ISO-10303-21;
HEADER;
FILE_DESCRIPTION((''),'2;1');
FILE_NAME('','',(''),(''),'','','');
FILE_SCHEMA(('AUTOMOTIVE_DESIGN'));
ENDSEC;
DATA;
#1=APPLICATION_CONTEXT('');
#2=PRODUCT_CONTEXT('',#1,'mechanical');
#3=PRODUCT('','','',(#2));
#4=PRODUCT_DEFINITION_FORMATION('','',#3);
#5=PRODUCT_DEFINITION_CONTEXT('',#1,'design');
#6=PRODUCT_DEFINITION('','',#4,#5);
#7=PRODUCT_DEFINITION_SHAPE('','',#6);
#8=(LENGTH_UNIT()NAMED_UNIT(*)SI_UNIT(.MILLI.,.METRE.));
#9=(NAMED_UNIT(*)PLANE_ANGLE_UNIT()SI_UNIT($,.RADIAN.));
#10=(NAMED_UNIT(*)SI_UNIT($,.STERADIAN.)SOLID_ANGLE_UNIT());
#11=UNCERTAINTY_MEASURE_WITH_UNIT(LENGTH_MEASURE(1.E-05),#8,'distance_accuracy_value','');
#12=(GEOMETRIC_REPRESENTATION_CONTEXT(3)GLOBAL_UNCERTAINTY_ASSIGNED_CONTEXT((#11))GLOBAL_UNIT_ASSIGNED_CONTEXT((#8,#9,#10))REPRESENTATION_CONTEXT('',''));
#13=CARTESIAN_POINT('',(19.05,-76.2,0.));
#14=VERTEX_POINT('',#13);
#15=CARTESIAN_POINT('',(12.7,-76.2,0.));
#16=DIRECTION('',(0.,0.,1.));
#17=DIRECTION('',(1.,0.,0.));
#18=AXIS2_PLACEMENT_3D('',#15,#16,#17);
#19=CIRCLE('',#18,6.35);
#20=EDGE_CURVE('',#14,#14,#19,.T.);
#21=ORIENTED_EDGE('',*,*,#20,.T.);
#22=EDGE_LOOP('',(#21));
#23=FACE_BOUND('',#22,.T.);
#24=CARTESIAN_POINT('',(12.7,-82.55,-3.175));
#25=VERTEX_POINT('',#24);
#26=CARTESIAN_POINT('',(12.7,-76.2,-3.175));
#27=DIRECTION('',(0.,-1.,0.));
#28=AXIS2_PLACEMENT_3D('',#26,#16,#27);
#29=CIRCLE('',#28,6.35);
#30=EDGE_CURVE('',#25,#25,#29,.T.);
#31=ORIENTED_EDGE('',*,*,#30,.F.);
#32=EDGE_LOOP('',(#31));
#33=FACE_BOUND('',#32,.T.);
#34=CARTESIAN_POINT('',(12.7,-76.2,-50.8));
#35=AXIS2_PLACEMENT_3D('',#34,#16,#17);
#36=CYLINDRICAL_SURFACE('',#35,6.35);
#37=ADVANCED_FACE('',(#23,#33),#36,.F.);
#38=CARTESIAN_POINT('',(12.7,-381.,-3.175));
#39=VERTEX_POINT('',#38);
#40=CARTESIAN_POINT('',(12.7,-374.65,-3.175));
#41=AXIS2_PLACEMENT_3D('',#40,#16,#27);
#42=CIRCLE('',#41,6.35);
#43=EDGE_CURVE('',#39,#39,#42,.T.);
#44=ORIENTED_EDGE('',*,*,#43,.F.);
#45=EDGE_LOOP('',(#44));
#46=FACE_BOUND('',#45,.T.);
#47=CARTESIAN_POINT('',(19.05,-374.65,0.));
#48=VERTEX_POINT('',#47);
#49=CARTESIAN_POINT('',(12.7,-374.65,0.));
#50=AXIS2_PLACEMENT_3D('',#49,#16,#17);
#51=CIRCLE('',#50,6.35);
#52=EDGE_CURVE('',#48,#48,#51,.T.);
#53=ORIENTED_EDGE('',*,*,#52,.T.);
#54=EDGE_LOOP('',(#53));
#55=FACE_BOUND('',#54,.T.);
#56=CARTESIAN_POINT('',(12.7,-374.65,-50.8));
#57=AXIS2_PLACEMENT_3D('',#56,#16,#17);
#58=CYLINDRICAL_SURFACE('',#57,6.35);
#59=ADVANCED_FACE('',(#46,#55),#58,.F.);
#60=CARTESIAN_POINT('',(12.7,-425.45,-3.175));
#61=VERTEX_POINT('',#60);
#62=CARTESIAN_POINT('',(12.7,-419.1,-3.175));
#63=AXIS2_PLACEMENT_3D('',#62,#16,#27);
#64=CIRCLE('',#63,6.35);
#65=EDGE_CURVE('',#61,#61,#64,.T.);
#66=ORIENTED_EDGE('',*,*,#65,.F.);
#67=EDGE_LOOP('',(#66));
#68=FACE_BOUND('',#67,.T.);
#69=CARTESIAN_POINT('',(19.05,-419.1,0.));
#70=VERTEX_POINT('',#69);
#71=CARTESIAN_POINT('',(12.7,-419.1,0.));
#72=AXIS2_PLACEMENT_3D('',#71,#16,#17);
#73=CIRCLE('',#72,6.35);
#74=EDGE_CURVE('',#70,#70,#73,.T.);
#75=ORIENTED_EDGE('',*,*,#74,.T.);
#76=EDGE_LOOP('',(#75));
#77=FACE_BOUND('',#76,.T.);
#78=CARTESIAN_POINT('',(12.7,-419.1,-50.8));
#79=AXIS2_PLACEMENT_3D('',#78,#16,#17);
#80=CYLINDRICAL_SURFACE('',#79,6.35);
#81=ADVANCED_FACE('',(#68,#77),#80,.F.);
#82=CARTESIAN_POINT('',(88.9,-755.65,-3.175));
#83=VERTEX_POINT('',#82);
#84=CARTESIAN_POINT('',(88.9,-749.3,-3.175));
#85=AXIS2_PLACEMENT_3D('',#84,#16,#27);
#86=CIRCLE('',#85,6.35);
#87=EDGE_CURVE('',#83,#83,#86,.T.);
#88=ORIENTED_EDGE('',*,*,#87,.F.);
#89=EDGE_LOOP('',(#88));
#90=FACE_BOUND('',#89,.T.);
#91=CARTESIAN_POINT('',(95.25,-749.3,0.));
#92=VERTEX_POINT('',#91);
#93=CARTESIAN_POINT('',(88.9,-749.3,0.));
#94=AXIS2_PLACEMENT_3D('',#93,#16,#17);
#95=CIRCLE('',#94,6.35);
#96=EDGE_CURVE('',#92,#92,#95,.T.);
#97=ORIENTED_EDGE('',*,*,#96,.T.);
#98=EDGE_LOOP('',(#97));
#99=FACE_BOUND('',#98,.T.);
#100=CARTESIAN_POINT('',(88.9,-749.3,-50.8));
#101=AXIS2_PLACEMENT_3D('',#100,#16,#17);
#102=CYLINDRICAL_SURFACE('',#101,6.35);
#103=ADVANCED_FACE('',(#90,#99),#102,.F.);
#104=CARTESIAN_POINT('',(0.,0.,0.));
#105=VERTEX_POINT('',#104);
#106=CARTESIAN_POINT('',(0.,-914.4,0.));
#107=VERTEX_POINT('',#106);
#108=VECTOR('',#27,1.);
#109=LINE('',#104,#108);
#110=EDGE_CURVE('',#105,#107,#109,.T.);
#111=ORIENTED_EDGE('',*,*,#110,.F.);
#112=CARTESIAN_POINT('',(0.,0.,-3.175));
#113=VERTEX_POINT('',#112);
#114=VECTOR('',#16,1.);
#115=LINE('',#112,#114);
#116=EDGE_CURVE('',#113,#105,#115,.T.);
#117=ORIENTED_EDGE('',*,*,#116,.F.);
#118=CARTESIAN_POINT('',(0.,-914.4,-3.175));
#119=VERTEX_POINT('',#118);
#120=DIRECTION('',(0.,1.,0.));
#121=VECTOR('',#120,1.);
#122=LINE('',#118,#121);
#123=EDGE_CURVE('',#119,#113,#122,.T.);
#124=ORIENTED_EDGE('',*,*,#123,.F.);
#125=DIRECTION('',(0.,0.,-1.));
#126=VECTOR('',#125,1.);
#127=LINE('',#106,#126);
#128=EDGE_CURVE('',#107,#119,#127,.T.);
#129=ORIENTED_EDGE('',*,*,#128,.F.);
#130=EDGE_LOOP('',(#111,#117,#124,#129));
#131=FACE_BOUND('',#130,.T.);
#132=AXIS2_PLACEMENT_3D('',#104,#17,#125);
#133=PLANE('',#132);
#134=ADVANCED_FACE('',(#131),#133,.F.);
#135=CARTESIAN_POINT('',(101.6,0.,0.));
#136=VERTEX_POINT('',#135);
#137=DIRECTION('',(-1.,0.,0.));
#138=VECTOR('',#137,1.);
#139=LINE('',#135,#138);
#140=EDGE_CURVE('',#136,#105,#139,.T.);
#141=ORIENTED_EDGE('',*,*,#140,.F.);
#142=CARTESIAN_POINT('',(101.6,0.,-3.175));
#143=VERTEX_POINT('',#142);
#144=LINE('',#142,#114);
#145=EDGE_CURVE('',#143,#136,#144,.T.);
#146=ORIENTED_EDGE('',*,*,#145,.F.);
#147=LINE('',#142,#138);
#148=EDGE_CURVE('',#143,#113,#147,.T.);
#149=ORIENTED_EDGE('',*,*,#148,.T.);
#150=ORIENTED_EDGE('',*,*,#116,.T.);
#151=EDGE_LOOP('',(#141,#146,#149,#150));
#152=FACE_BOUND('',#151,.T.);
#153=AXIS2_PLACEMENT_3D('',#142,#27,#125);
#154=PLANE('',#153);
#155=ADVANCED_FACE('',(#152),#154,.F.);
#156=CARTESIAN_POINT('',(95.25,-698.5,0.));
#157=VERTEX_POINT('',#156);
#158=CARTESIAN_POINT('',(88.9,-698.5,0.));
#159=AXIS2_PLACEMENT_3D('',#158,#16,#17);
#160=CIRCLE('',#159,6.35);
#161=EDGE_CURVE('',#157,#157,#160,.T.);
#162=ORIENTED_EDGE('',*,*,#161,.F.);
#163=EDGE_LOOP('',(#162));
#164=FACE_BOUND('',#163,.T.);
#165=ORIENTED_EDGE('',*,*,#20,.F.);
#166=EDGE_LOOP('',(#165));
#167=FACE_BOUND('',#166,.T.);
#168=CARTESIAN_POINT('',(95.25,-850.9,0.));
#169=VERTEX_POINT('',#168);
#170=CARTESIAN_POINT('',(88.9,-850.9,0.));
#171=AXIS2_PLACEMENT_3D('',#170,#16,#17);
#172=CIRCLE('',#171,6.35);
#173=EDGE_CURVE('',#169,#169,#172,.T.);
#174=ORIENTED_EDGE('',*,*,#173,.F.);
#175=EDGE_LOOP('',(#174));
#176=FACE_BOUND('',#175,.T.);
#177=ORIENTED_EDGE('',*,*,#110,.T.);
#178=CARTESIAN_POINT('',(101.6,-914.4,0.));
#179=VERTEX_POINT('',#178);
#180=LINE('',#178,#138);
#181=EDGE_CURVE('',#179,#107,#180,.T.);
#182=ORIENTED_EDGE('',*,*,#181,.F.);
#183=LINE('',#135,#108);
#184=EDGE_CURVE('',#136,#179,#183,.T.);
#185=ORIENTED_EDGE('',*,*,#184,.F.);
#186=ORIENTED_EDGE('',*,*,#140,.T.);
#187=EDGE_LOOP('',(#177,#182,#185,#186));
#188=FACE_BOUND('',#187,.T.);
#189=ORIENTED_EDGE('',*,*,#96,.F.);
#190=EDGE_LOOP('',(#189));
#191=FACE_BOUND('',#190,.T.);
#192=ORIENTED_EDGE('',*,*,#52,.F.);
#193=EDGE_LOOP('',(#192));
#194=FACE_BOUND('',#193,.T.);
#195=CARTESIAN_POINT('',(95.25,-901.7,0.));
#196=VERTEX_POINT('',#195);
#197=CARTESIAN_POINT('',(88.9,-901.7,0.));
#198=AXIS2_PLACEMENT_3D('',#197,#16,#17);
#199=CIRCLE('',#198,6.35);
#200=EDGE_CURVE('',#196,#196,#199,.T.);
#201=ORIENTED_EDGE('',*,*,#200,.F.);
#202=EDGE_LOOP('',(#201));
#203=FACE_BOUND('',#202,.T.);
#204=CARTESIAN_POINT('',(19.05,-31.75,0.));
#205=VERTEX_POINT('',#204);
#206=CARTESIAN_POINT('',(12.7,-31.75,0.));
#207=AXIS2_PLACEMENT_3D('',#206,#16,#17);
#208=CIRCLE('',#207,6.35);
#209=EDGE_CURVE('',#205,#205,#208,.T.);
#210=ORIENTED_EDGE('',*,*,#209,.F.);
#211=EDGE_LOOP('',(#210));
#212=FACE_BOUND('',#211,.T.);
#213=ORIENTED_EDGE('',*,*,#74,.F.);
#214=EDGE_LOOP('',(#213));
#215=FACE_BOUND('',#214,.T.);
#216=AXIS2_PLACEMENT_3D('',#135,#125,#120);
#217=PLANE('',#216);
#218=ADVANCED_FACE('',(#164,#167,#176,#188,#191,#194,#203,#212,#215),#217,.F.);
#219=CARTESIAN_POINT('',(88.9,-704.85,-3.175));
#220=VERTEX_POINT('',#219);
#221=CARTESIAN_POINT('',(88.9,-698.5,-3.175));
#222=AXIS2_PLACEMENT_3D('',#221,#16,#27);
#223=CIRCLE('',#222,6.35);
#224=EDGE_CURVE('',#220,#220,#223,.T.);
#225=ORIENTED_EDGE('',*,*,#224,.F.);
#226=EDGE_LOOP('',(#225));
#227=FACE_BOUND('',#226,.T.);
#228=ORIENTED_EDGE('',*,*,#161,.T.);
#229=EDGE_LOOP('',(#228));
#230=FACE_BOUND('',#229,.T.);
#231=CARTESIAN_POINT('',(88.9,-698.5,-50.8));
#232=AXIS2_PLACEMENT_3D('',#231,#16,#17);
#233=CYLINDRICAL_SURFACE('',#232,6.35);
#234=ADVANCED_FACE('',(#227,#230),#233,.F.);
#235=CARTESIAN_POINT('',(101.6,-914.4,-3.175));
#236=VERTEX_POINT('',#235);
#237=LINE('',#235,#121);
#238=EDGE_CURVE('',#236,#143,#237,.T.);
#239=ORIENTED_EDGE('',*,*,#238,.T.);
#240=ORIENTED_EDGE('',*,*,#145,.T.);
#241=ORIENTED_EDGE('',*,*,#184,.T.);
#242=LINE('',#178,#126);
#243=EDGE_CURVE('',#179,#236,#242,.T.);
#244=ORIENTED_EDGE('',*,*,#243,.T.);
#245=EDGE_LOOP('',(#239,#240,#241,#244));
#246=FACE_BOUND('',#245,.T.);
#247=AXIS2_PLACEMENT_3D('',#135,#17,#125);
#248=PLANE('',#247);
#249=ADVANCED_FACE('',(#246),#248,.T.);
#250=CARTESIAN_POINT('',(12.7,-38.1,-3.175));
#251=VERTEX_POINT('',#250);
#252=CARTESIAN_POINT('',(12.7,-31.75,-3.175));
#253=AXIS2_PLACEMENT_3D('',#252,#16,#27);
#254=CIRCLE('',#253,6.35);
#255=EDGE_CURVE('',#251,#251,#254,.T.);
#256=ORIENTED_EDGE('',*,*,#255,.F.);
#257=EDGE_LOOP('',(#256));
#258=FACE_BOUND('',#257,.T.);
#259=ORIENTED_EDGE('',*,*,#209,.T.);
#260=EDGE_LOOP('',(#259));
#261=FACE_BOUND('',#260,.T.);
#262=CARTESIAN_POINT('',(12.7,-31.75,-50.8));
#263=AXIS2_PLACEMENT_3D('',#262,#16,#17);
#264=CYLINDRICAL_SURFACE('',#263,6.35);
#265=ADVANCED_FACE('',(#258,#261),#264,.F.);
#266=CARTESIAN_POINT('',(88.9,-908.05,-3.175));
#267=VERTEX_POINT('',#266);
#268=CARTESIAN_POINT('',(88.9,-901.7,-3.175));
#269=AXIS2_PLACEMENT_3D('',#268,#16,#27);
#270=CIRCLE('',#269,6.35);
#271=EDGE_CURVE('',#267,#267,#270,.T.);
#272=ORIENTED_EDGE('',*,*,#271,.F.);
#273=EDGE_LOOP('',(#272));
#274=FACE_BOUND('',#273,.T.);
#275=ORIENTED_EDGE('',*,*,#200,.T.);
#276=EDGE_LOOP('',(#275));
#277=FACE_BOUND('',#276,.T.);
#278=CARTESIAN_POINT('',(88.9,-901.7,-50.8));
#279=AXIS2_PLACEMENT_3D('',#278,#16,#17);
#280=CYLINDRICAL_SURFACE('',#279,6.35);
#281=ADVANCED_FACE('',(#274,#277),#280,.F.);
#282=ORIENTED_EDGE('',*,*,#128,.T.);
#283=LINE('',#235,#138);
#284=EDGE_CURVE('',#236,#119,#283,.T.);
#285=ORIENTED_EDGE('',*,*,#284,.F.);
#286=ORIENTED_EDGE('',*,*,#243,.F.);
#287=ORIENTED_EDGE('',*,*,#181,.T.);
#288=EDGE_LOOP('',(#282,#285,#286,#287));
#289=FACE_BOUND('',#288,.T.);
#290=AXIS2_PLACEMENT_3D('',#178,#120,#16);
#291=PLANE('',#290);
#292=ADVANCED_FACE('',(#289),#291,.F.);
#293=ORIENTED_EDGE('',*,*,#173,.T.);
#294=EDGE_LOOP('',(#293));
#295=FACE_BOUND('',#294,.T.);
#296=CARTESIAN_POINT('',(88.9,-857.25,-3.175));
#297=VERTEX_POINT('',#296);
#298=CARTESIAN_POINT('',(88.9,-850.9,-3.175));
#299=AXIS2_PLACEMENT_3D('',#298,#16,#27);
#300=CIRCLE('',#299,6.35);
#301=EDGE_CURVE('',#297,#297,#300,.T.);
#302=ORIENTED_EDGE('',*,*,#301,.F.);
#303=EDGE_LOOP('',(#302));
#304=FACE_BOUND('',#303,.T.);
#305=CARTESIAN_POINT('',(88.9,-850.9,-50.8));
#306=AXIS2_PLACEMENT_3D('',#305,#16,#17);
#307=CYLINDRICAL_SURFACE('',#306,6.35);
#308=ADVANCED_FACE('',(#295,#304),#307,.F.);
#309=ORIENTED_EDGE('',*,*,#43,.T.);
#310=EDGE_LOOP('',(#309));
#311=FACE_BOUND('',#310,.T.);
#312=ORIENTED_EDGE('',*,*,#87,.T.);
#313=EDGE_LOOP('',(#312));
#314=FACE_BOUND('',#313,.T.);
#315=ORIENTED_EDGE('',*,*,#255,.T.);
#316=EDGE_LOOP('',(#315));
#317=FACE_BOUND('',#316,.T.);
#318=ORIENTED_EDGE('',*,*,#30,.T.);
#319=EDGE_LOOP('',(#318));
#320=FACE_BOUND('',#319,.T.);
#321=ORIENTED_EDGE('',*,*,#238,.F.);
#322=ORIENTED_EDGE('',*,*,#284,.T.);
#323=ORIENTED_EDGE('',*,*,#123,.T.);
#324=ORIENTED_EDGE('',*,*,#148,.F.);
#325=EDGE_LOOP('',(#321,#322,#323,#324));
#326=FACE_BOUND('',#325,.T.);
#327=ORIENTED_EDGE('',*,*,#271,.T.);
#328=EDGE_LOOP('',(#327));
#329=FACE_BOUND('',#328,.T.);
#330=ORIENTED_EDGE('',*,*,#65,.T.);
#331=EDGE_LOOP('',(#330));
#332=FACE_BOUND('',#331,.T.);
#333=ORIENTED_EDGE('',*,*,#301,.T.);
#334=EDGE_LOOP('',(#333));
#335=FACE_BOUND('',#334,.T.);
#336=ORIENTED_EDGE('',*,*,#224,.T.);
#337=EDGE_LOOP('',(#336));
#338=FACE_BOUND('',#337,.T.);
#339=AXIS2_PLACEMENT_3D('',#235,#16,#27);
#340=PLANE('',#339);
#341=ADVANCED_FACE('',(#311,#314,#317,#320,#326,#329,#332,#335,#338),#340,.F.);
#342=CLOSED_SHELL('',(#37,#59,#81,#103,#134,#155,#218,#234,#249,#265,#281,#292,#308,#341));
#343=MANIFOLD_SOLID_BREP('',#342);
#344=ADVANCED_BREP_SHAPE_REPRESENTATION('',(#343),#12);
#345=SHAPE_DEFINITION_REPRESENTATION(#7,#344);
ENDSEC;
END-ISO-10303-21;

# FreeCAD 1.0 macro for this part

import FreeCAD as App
import Part
import Sketcher

V = App.Vector
Q = App.Units.Quantity

doc = App.newDocument("Part")
body = doc.addObject("PartDesign::Body", "Body")

sketch1 = body.newObject("Sketcher::SketchObject", "Sketch")
sketch1.AttachmentSupport = (doc.getObject("YZ_Plane"), [""])
sketch1.MapMode = "FlatFace"
sketch1.addGeometry(Part.LineSegment(V(0, 0, 0), V(-914.4, 0, 0)), False)
sketch1.addGeometry(Part.LineSegment(V(-914.4, 0, 0), V(-914.4, -3.2, 0)), False)
sketch1.addGeometry(Part.LineSegment(V(-914.4, -3.2, 0), V(0, -3.2, 0)), False)
sketch1.addGeometry(Part.LineSegment(V(0, -3.2, 0), V(0, 0, 0)), False)
sketch1.addConstraint(Sketcher.Constraint("Coincident", 0, 2, 1, 1))
sketch1.addConstraint(Sketcher.Constraint("Coincident", 1, 2, 2, 1))
sketch1.addConstraint(Sketcher.Constraint("Coincident", 2, 2, 3, 1))
sketch1.addConstraint(Sketcher.Constraint("Coincident", 3, 2, 0, 1))
sketch1.addConstraint(Sketcher.Constraint("Horizontal", 0))
sketch1.addConstraint(Sketcher.Constraint("Vertical", 1))
sketch1.addConstraint(Sketcher.Constraint("Horizontal", 2))
sketch1.addConstraint(Sketcher.Constraint("Vertical", 3))
sketch1.addConstraint(Sketcher.Constraint("Coincident", 3, 2, -1, 1))
sketch1.addConstraint(Sketcher.Constraint("DistanceX", 0, 2, 0, 1, Q("36 in")))
sketch1.addConstraint(Sketcher.Constraint("DistanceY", 1, 2, 1, 1, Q("0.125 in")))
pad1 = body.newObject("PartDesign::Pad", "Pad")
pad1.Profile = sketch1
pad1.Length = Q("4 in")

sketch2 = body.newObject("Sketcher::SketchObject", "Sketch001")
sketch2.AttachmentSupport = (doc.getObject("XY_Plane"), [""])
sketch2.MapMode = "FlatFace"
sketch2.addGeometry(Part.Circle(V(89, -902, 0), V(0, 0, 1), 6), False)
sketch2.addGeometry(Part.Circle(V(89, -851, 0), V(0, 0, 1), 6), False)
sketch2.addGeometry(Part.Circle(V(89, -749, 0), V(0, 0, 1), 6), False)
sketch2.addGeometry(Part.Circle(V(89, -698, 0), V(0, 0, 1), 6), False)
sketch2.addConstraint(Sketcher.Constraint("Equal", 0, 1))
sketch2.addConstraint(Sketcher.Constraint("Equal", 1, 2))
sketch2.addConstraint(Sketcher.Constraint("Equal", 2, 3))
sketch2.addConstraint(Sketcher.Constraint("Vertical", 0, 3, 1, 3))
sketch2.addConstraint(Sketcher.Constraint("Vertical", 1, 3, 2, 3))
sketch2.addConstraint(Sketcher.Constraint("Vertical", 2, 3, 3, 3))
sketch2.addConstraint(Sketcher.Constraint("Diameter", 0, Q("0.5 in")))
sketch2.addConstraint(Sketcher.Constraint("DistanceY", 0, 3, 1, 3, Q("2 in")))
sketch2.addConstraint(Sketcher.Constraint("DistanceY", 1, 3, 2, 3, Q("4 in")))
sketch2.addConstraint(Sketcher.Constraint("DistanceY", 2, 3, 3, 3, Q("2 in")))
sketch2.addConstraint(Sketcher.Constraint("DistanceX", -1, 1, 0, 3, Q("3.5 in")))
sketch2.addConstraint(Sketcher.Constraint("DistanceY", 0, 3, -1, 1, Q("35.5 in")))
pocket1 = body.newObject("PartDesign::Pocket", "Pocket")
pocket1.Profile = sketch2
pocket1.Length = Q("2 in")

sketch3 = body.newObject("Sketcher::SketchObject", "Sketch002")
sketch3.AttachmentSupport = (doc.getObject("XY_Plane"), [""])
sketch3.MapMode = "FlatFace"
sketch3.addGeometry(Part.Circle(V(13, -419, 0), V(0, 0, 1), 6), False)
sketch3.addGeometry(Part.Circle(V(13, -375, 0), V(0, 0, 1), 6), False)
sketch3.addGeometry(Part.Circle(V(13, -76, 0), V(0, 0, 1), 6), False)
sketch3.addGeometry(Part.Circle(V(13, -32, 0), V(0, 0, 1), 6), False)
sketch3.addConstraint(Sketcher.Constraint("Equal", 0, 1))
sketch3.addConstraint(Sketcher.Constraint("Equal", 1, 2))
sketch3.addConstraint(Sketcher.Constraint("Equal", 2, 3))
sketch3.addConstraint(Sketcher.Constraint("Vertical", 0, 3, 1, 3))
sketch3.addConstraint(Sketcher.Constraint("Vertical", 1, 3, 2, 3))
sketch3.addConstraint(Sketcher.Constraint("Vertical", 2, 3, 3, 3))
sketch3.addConstraint(Sketcher.Constraint("Diameter", 0, Q("0.5 in")))
sketch3.addConstraint(Sketcher.Constraint("DistanceY", 2, 3, -1, 1, Q("3 in")))
sketch3.addConstraint(Sketcher.Constraint("DistanceX", -1, 1, 0, 3, Q("0.5 in")))
sketch3.addConstraint(Sketcher.Constraint("DistanceY", 0, 3, -1, 1, Q("16.5 in")))
sketch3.addConstraint(Sketcher.Constraint("DistanceY", 1, 3, 3, 3, Q("13.5 in")))
sketch3.addConstraint(Sketcher.Constraint("DistanceY", 1, 3, -1, 1, Q("14.75 in")))
pocket2 = body.newObject("PartDesign::Pocket", "Pocket001")
pocket2.Profile = sketch3
pocket2.Length = Q("2 in")

doc.recompute()
